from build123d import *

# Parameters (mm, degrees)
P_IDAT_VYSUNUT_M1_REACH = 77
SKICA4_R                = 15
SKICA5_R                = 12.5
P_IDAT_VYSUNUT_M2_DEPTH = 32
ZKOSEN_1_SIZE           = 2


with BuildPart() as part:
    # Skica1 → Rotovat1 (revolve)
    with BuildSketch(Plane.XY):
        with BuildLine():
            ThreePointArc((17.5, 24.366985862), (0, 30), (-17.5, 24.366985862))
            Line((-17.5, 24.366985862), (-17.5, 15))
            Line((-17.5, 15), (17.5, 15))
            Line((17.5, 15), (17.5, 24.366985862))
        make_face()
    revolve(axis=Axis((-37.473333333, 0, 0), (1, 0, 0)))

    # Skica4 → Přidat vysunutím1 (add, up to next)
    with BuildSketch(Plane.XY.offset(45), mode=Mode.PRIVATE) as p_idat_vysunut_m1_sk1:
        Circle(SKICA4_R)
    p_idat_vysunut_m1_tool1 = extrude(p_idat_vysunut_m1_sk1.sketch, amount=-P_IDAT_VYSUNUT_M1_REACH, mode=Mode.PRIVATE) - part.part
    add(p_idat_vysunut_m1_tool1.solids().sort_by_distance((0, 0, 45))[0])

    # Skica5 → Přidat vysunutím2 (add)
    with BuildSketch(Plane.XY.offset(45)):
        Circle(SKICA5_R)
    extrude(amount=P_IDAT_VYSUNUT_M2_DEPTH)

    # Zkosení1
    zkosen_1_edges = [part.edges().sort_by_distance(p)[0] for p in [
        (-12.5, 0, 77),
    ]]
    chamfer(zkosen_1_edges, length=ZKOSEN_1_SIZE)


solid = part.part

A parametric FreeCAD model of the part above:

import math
import FreeCAD as App
import Part
import Sketcher

V = App.Vector
Q = App.Units.Quantity


def edges_at(feature, points):
    """Names of the edges that pass closest to the given points."""
    edges = feature.Shape.Edges
    near = lambda p: min(range(len(edges)), key=lambda i: edges[i].distToShape(Part.Vertex(*p))[0])
    return sorted({f"Edge{near(p) + 1}" for p in points})

doc = App.newDocument("Part")
params = doc.addObject("Spreadsheet::Sheet", "Params")
for row, (alias, value) in enumerate([
    ("sketch1_radius", "30 mm"),
    ("sketch1_width", "35 mm"),
    ("revolution_angle", "360 deg"),
    ("sketch2_diameter", "30 mm"),
    ("sketch3_diameter", "25 mm"),
    ("pad2_length", "32 mm"),
    ("chamfer_size", "2 mm"),
], start=1):
    params.set(f"A{row}", alias)
    params.set(f"B{row}", "=" + value)
    params.setAlias(f"B{row}", alias)

body = doc.addObject("PartDesign::Body", "Body")

# Sketch on XY plane
sketch1 = doc.addObject("Sketcher::SketchObject", "Sketch")
body.addObject(sketch1)
sketch1.AttachmentSupport = (doc.XY_Plane, [""])
sketch1.MapMode = "FlatFace"
sketch1.addGeometry([
    Part.ArcOfCircle(Part.Circle(V(0, 0, 0), V(0, 0, 1), 30), math.radians(54), math.radians(126)),
    Part.LineSegment(V(-18, 24, 0), V(-18, 15, 0)),
    Part.LineSegment(V(-18, 15, 0), V(18, 15, 0)),
    Part.LineSegment(V(18, 15, 0), V(18, 24, 0)),
], False)
sketch1.addConstraint([
    Sketcher.Constraint("Coincident", 0, 2, 1, 1),
    Sketcher.Constraint("Coincident", 1, 2, 2, 1),
    Sketcher.Constraint("Coincident", 2, 2, 3, 1),
    Sketcher.Constraint("Coincident", 3, 2, 0, 1),
    Sketcher.Constraint("Vertical", 1),
    Sketcher.Constraint("Horizontal", 2),
    Sketcher.Constraint("Vertical", 3),
    Sketcher.Constraint("Coincident", 0, 3, -1, 1),
    Sketcher.Constraint("Horizontal", 0, 2, 3, 2),
    Sketcher.Constraint("Radius", 0, Q("30 mm")),
    Sketcher.Constraint("DistanceX", 2, 1, 2, 2, Q("35 mm")),
    Sketcher.Constraint("DistanceY", -1, 1, 1, 2, Q("15 mm")),
])
sketch1.setExpression("Constraints[9]", "Params.sketch1_radius")
sketch1.setExpression("Constraints[10]", "Params.sketch1_width")
revolution = doc.addObject("PartDesign::Revolution", "Revolution")
body.addObject(revolution)
revolution.Profile = sketch1
revolution.ReferenceAxis = (sketch1, ["H_Axis"])
revolution.setExpression("Angle", "Params.revolution_angle")

# Sketch on XY plane
sketch2 = doc.addObject("Sketcher::SketchObject", "Sketch001")
body.addObject(sketch2)
sketch2.AttachmentSupport = (doc.XY_Plane, [""])
sketch2.MapMode = "FlatFace"
sketch2.AttachmentOffset = App.Placement(V(0, 0, 45), App.Rotation())
sketch2.addGeometry(Part.Circle(V(0, 0, 0), V(0, 0, 1), 15), False)
sketch2.addConstraint([
    Sketcher.Constraint("Coincident", 0, 3, -1, 1),
    Sketcher.Constraint("Diameter", 0, Q("30 mm")),
])
sketch2.setExpression("Constraints[1]", "Params.sketch2_diameter")
pad1 = doc.addObject("PartDesign::Pad", "Pad")
body.addObject(pad1)
pad1.Profile = sketch2
pad1.Type = "UpToFirst"
pad1.Reversed = True

# Sketch on XY plane
sketch3 = doc.addObject("Sketcher::SketchObject", "Sketch002")
body.addObject(sketch3)
sketch3.AttachmentSupport = (doc.XY_Plane, [""])
sketch3.MapMode = "FlatFace"
sketch3.AttachmentOffset = App.Placement(V(0, 0, 45), App.Rotation())
sketch3.addGeometry(Part.Circle(V(0, 0, 0), V(0, 0, 1), 12), False)
sketch3.addConstraint([
    Sketcher.Constraint("Coincident", 0, 3, -1, 1),
    Sketcher.Constraint("Diameter", 0, Q("25 mm")),
])
sketch3.setExpression("Constraints[1]", "Params.sketch3_diameter")
pad2 = doc.addObject("PartDesign::Pad", "Pad001")
body.addObject(pad2)
pad2.Profile = sketch3
pad2.setExpression("Length", "Params.pad2_length")
doc.recompute()

chamfer = doc.addObject("PartDesign::Chamfer", "Chamfer")
body.addObject(chamfer)
chamfer.Base = (pad2, edges_at(pad2, [(-12.5, 0, 77)]))
chamfer.setExpression("Size", "Params.chamfer_size")

doc.recompute()
